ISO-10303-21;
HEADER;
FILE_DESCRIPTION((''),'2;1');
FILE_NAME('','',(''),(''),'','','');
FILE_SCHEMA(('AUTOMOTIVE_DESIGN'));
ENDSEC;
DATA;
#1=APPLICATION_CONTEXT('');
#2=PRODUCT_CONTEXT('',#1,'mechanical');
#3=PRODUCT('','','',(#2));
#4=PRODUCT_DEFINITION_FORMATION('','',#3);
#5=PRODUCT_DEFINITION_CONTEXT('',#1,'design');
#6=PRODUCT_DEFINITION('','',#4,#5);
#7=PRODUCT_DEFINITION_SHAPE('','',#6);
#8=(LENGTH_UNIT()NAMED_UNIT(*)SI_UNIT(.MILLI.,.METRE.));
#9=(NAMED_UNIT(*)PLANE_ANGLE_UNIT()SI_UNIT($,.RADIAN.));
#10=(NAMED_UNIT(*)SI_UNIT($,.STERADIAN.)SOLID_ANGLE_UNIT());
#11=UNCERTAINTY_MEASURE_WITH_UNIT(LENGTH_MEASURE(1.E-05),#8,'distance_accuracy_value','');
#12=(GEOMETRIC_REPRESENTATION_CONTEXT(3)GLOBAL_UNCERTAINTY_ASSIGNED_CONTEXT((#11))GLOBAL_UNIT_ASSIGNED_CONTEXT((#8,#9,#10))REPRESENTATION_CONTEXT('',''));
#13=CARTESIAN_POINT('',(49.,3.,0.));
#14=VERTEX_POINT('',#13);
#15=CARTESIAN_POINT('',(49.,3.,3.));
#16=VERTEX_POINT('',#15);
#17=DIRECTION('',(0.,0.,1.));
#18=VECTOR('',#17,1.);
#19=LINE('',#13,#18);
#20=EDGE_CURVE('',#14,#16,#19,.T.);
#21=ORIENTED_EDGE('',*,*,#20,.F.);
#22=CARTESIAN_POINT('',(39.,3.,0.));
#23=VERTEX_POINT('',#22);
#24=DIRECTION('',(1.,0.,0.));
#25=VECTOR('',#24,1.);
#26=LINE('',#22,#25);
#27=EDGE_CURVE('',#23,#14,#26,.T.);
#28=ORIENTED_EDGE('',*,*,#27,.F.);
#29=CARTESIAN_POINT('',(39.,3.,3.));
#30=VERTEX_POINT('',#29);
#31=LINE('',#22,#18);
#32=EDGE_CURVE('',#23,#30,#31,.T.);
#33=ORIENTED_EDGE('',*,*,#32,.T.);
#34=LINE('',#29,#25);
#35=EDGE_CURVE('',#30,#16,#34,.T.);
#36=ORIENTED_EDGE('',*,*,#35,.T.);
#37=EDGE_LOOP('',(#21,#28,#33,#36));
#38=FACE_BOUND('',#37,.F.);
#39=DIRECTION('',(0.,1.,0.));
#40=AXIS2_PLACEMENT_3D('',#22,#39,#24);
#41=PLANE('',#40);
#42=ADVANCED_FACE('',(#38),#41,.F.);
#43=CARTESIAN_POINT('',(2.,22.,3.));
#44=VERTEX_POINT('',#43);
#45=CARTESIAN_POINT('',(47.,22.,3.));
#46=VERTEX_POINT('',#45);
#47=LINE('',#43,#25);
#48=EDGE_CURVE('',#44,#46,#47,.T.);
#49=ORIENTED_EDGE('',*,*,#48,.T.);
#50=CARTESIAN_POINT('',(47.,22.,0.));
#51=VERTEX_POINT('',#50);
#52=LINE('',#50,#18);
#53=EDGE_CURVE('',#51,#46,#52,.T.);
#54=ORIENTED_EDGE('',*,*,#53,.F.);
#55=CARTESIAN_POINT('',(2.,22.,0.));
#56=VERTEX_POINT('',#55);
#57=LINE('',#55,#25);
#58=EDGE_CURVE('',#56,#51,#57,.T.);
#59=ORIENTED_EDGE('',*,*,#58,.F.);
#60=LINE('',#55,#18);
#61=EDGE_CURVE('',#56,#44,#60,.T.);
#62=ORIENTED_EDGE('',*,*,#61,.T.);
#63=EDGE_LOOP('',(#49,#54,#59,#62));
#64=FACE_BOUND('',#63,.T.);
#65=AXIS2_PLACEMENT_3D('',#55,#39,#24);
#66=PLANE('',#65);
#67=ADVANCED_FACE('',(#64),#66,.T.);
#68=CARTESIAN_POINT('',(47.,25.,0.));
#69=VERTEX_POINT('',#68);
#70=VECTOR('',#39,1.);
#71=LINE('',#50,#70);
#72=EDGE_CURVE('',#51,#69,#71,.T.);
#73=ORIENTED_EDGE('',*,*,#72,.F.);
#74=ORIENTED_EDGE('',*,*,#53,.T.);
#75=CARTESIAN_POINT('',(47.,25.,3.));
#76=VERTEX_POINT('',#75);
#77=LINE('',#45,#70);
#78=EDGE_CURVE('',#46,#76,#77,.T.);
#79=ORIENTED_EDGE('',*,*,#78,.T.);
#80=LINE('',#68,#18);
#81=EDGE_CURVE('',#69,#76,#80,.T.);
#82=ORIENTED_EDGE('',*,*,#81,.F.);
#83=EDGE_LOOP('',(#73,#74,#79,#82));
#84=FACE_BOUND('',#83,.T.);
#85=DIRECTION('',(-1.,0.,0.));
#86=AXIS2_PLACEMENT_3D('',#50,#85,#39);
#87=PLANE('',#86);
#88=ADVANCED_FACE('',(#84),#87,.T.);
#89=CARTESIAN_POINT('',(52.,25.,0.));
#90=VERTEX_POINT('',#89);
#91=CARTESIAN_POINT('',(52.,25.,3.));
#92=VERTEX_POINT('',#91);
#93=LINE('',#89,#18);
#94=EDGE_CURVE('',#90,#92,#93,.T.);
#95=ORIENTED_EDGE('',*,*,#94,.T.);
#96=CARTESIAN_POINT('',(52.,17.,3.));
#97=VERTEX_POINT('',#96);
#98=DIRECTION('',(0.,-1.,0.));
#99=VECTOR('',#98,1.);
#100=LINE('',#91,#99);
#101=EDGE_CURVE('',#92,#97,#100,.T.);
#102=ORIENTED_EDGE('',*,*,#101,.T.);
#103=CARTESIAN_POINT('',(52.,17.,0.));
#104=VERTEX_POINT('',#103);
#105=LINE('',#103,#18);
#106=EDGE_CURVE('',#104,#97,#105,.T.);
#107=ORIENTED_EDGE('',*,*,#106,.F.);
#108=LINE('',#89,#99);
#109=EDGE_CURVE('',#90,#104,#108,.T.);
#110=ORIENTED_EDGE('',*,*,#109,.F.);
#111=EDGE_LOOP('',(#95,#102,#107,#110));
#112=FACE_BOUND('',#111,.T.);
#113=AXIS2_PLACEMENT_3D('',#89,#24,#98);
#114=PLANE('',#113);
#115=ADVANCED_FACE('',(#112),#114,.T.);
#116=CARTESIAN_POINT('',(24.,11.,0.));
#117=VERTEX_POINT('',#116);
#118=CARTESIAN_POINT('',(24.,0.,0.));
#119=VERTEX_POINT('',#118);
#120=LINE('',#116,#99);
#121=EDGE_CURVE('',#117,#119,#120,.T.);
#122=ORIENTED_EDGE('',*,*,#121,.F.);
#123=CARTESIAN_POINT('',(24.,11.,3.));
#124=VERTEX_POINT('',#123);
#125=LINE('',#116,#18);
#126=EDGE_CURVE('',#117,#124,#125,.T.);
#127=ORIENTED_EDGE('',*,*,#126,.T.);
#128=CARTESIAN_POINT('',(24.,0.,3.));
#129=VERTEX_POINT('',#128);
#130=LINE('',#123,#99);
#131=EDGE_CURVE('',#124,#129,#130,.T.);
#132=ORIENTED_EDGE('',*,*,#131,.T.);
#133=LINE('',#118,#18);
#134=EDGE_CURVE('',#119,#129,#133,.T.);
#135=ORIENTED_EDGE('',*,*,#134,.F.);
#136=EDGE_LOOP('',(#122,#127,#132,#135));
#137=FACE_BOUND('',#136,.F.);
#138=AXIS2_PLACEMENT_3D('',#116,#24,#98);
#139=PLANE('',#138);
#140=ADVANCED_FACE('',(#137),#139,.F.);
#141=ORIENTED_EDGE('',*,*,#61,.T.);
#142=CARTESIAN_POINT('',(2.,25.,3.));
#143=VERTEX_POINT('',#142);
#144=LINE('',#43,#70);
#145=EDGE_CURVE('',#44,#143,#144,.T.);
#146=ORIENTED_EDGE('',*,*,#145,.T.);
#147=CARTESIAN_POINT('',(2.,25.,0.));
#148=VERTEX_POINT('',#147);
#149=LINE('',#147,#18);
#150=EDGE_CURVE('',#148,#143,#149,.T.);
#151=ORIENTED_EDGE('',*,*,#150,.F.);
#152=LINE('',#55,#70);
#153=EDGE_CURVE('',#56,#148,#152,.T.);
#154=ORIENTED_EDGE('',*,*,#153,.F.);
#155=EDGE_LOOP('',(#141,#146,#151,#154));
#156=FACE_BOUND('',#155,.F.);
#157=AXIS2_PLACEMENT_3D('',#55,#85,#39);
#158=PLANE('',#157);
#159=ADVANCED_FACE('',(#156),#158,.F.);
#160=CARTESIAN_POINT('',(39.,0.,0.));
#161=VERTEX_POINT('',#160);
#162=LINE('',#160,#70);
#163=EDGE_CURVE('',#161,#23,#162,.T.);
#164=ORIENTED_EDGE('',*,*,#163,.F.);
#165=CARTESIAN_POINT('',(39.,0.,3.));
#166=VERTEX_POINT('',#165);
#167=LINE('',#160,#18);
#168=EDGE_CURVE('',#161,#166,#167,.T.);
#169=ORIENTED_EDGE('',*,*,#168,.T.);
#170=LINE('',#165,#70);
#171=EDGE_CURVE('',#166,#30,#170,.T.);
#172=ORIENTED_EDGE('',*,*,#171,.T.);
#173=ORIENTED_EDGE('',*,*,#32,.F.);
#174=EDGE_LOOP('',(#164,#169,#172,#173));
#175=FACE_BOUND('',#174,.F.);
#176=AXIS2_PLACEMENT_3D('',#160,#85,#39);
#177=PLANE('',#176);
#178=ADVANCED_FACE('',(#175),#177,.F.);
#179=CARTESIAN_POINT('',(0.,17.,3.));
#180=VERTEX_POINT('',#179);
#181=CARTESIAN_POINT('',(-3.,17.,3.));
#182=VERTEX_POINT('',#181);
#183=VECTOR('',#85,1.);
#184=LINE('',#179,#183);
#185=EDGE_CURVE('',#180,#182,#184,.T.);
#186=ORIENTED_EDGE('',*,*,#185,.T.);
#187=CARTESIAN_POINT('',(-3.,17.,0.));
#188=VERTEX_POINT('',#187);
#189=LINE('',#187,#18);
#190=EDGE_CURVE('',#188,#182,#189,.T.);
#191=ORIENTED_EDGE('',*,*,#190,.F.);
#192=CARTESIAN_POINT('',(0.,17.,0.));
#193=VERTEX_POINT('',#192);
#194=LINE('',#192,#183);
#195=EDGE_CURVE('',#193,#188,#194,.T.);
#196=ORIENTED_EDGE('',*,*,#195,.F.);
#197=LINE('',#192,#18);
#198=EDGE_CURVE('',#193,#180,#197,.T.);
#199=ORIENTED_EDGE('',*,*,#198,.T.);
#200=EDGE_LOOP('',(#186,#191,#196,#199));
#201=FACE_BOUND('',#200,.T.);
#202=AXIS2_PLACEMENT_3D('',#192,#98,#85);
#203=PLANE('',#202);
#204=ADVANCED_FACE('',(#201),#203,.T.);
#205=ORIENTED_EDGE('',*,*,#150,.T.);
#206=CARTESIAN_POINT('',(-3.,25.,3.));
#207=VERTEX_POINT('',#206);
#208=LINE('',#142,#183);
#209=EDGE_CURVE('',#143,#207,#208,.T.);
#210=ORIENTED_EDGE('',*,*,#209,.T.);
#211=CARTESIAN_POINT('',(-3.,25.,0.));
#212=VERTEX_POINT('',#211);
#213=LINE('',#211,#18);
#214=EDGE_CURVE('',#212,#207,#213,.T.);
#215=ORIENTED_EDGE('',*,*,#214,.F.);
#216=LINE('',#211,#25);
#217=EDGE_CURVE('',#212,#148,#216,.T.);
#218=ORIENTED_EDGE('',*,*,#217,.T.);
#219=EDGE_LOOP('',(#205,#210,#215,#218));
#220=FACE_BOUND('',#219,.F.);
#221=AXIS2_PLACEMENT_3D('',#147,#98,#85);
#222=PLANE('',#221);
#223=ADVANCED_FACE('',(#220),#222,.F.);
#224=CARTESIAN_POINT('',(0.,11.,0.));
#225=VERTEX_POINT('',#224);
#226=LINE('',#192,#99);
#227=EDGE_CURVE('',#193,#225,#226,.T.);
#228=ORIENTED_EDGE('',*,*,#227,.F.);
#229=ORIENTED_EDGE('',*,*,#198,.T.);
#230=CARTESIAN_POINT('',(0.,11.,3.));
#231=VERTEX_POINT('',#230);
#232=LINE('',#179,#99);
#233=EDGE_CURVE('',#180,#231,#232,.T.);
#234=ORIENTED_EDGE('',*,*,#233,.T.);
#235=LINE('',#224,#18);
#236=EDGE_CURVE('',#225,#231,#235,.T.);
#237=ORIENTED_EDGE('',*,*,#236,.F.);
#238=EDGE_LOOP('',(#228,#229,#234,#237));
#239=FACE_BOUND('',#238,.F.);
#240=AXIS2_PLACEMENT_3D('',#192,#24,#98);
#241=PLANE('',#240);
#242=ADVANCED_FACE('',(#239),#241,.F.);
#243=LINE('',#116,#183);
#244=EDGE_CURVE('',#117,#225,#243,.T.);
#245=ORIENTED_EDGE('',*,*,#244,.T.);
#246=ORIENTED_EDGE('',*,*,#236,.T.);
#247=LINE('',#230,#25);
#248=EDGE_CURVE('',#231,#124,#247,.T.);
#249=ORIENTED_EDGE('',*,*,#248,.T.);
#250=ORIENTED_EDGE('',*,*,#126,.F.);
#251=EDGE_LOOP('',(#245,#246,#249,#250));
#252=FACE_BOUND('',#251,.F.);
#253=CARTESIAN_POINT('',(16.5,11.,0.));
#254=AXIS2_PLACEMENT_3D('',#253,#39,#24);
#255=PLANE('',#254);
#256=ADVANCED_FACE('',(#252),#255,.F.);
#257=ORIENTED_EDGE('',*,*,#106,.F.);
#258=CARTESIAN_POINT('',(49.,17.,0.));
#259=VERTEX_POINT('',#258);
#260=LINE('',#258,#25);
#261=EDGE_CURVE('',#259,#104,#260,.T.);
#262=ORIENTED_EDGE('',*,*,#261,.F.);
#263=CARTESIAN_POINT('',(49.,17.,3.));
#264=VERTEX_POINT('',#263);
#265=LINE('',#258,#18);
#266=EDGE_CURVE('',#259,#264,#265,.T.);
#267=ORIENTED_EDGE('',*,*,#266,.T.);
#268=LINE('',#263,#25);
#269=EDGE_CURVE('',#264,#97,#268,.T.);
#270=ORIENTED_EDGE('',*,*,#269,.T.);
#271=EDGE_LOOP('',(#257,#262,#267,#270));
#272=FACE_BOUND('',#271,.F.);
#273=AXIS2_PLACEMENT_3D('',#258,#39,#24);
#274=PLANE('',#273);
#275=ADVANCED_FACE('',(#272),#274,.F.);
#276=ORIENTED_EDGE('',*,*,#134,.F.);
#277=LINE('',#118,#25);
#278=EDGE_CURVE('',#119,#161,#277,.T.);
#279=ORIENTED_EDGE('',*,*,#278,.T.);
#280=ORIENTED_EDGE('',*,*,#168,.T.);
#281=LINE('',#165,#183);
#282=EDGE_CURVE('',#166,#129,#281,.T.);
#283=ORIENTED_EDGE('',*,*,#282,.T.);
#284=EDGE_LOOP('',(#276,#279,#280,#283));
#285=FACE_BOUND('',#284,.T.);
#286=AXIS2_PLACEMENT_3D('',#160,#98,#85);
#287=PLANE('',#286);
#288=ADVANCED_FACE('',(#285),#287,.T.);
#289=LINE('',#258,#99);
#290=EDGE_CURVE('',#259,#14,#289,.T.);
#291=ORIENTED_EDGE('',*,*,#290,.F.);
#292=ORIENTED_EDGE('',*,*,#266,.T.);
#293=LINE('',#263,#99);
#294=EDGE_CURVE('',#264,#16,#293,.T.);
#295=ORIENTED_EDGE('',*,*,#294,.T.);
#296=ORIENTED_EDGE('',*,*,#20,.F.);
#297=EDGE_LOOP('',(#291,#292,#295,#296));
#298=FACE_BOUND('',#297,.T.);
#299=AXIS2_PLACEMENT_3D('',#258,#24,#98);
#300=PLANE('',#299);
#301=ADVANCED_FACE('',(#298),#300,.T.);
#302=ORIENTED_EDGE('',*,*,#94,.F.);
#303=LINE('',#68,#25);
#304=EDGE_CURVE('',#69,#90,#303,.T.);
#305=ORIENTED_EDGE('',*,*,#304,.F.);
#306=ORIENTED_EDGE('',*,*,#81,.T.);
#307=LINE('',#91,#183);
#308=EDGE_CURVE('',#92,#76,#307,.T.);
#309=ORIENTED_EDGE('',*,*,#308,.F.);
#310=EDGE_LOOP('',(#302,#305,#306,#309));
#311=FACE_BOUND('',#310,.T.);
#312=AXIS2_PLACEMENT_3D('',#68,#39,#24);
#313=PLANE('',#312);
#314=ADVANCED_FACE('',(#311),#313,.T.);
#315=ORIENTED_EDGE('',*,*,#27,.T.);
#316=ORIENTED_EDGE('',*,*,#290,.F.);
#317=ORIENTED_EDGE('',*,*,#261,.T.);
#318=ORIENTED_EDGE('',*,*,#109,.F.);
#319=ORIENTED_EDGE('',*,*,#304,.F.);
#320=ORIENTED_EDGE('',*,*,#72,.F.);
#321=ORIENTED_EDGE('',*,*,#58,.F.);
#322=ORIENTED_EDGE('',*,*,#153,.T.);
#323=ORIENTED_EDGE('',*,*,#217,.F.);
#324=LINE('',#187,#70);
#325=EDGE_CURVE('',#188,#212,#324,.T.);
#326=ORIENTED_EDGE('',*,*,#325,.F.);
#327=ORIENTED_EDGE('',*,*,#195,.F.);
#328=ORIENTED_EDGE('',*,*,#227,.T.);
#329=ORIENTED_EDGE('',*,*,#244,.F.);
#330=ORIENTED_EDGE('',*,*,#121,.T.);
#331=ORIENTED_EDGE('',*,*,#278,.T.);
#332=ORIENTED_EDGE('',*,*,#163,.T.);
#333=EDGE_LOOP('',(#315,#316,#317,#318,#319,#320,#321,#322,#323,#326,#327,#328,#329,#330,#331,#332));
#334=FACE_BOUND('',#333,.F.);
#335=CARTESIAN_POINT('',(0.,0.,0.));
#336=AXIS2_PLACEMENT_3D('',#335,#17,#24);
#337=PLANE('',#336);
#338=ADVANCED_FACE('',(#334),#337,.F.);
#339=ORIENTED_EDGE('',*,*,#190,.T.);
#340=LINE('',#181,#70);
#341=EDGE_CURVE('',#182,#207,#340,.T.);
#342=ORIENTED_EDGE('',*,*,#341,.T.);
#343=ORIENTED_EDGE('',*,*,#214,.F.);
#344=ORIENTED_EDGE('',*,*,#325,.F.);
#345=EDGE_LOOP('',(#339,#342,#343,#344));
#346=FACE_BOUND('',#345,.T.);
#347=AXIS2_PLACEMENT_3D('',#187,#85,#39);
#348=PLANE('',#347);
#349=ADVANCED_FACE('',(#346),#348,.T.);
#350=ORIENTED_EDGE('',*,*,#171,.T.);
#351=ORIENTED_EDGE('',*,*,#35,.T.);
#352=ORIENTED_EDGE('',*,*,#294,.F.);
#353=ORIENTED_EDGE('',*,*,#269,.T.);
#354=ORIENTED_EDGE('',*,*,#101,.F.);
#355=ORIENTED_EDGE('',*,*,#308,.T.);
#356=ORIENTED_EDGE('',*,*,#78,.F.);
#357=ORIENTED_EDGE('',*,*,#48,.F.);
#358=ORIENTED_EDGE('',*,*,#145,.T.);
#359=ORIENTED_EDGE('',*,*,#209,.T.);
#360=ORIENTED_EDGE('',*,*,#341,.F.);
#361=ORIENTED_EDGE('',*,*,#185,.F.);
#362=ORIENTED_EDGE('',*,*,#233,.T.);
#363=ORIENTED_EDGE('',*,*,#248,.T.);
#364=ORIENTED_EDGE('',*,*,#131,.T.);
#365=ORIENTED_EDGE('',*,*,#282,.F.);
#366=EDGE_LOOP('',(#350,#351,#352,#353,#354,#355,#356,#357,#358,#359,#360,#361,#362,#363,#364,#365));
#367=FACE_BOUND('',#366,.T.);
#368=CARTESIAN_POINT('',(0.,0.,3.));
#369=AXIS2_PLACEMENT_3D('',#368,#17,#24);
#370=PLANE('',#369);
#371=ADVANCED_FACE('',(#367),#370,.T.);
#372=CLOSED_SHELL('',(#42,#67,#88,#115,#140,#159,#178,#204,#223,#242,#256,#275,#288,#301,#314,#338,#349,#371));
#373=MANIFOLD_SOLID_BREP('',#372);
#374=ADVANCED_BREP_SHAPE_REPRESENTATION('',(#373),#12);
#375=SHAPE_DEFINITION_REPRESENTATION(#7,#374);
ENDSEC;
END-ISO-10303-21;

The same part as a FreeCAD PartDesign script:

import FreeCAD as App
import Part
import Sketcher

doc = App.newDocument("Part")
body = doc.addObject("PartDesign::Body", "Body")

# Sketch on XY plane
sketch1 = doc.addObject("Sketcher::SketchObject", "Sketch")
body.addObject(sketch1)
sketch1.AttachmentSupport = (doc.XY_Plane, [""])
sketch1.MapMode = "FlatFace"
sketch1.addGeometry(Part.LineSegment(App.Vector(39, 0, 0), App.Vector(39, 3, 0)), False)
sketch1.addGeometry(Part.LineSegment(App.Vector(39, 3, 0), App.Vector(49, 3, 0)), False)
sketch1.addGeometry(Part.LineSegment(App.Vector(49, 3, 0), App.Vector(49, 17, 0)), False)
sketch1.addGeometry(Part.LineSegment(App.Vector(49, 17, 0), App.Vector(52, 17, 0)), False)
sketch1.addGeometry(Part.LineSegment(App.Vector(52, 17, 0), App.Vector(52, 25, 0)), False)
sketch1.addGeometry(Part.LineSegment(App.Vector(52, 25, 0), App.Vector(47, 25, 0)), False)
sketch1.addGeometry(Part.LineSegment(App.Vector(47, 25, 0), App.Vector(47, 22, 0)), False)
sketch1.addGeometry(Part.LineSegment(App.Vector(47, 22, 0), App.Vector(2, 22, 0)), False)
sketch1.addGeometry(Part.LineSegment(App.Vector(2, 22, 0), App.Vector(2, 25, 0)), False)
sketch1.addGeometry(Part.LineSegment(App.Vector(2, 25, 0), App.Vector(-3, 25, 0)), False)
sketch1.addGeometry(Part.LineSegment(App.Vector(-3, 25, 0), App.Vector(-3, 17, 0)), False)
sketch1.addGeometry(Part.LineSegment(App.Vector(-3, 17, 0), App.Vector(0, 17, 0)), False)
sketch1.addGeometry(Part.LineSegment(App.Vector(0, 17, 0), App.Vector(0, 11, 0)), False)
sketch1.addGeometry(Part.LineSegment(App.Vector(0, 11, 0), App.Vector(24, 11, 0)), False)
sketch1.addGeometry(Part.LineSegment(App.Vector(24, 11, 0), App.Vector(24, 0, 0)), False)
sketch1.addGeometry(Part.LineSegment(App.Vector(24, 0, 0), App.Vector(39, 0, 0)), False)
sketch1.addConstraint(Sketcher.Constraint("Coincident", 0, 2, 1, 1))
sketch1.addConstraint(Sketcher.Constraint("Coincident", 1, 2, 2, 1))
sketch1.addConstraint(Sketcher.Constraint("Coincident", 2, 2, 3, 1))
sketch1.addConstraint(Sketcher.Constraint("Coincident", 3, 2, 4, 1))
sketch1.addConstraint(Sketcher.Constraint("Coincident", 4, 2, 5, 1))
sketch1.addConstraint(Sketcher.Constraint("Coincident", 5, 2, 6, 1))
sketch1.addConstraint(Sketcher.Constraint("Coincident", 6, 2, 7, 1))
sketch1.addConstraint(Sketcher.Constraint("Coincident", 7, 2, 8, 1))
sketch1.addConstraint(Sketcher.Constraint("Coincident", 8, 2, 9, 1))
sketch1.addConstraint(Sketcher.Constraint("Coincident", 9, 2, 10, 1))
sketch1.addConstraint(Sketcher.Constraint("Coincident", 10, 2, 11, 1))
sketch1.addConstraint(Sketcher.Constraint("Coincident", 11, 2, 12, 1))
sketch1.addConstraint(Sketcher.Constraint("Coincident", 12, 2, 13, 1))
sketch1.addConstraint(Sketcher.Constraint("Coincident", 13, 2, 14, 1))
sketch1.addConstraint(Sketcher.Constraint("Coincident", 14, 2, 15, 1))
sketch1.addConstraint(Sketcher.Constraint("Coincident", 15, 2, 0, 1))
sketch1.addConstraint(Sketcher.Constraint("Vertical", 0))
sketch1.addConstraint(Sketcher.Constraint("Horizontal", 1))
sketch1.addConstraint(Sketcher.Constraint("Vertical", 2))
sketch1.addConstraint(Sketcher.Constraint("Horizontal", 3))
sketch1.addConstraint(Sketcher.Constraint("Vertical", 4))
sketch1.addConstraint(Sketcher.Constraint("Horizontal", 5))
sketch1.addConstraint(Sketcher.Constraint("Vertical", 6))
sketch1.addConstraint(Sketcher.Constraint("Horizontal", 7))
sketch1.addConstraint(Sketcher.Constraint("Vertical", 8))
sketch1.addConstraint(Sketcher.Constraint("Horizontal", 9))
sketch1.addConstraint(Sketcher.Constraint("Vertical", 10))
sketch1.addConstraint(Sketcher.Constraint("Horizontal", 11))
sketch1.addConstraint(Sketcher.Constraint("Vertical", 12))
sketch1.addConstraint(Sketcher.Constraint("Horizontal", 13))
sketch1.addConstraint(Sketcher.Constraint("Vertical", 14))
sketch1.addConstraint(Sketcher.Constraint("Horizontal", 15))
sketch1.addConstraint(Sketcher.Constraint("PointOnObject", 11, 2, -2))
sketch1.addConstraint(Sketcher.Constraint("PointOnObject", 14, 2, -1))
sketch1.addConstraint(Sketcher.Constraint("Horizontal", 5, 2, 8, 2))
sketch1.addConstraint(Sketcher.Constraint("Horizontal", 3, 2, 10, 2))
sketch1.addConstraint(Sketcher.Constraint("Equal", 5, 9))
sketch1.addConstraint(Sketcher.Constraint("Equal", 3, 11))
sketch1.addConstraint(Sketcher.Constraint("Equal", 11, 0))
sketch1.addConstraint(Sketcher.Constraint("Equal", 0, 6))
sketch1.addConstraint(Sketcher.Constraint("DistanceX", 3, 1, 3, 2, 3.0))
sketch1.addConstraint(Sketcher.Constraint("DistanceX", 5, 2, 5, 1, 5.0))
sketch1.addConstraint(Sketcher.Constraint("DistanceY", 2, 2, 6, 2, 5.0))
sketch1.addConstraint(Sketcher.Constraint("DistanceX", 1, 1, 1, 2, 10.0))
sketch1.addConstraint(Sketcher.Constraint("DistanceX", 7, 2, 7, 1, 45.0))
sketch1.addConstraint(Sketcher.Constraint("DistanceX", 13, 1, 13, 2, 24.0))
sketch1.addConstraint(Sketcher.Constraint("DistanceY", 2, 1, 2, 2, 14.0))
sketch1.addConstraint(Sketcher.Constraint("DistanceY", 12, 2, 12, 1, 6.0))
pad1 = doc.addObject("PartDesign::Pad", "Pad")
body.addObject(pad1)
pad1.Profile = sketch1
pad1.Length = 3

doc.recompute()
